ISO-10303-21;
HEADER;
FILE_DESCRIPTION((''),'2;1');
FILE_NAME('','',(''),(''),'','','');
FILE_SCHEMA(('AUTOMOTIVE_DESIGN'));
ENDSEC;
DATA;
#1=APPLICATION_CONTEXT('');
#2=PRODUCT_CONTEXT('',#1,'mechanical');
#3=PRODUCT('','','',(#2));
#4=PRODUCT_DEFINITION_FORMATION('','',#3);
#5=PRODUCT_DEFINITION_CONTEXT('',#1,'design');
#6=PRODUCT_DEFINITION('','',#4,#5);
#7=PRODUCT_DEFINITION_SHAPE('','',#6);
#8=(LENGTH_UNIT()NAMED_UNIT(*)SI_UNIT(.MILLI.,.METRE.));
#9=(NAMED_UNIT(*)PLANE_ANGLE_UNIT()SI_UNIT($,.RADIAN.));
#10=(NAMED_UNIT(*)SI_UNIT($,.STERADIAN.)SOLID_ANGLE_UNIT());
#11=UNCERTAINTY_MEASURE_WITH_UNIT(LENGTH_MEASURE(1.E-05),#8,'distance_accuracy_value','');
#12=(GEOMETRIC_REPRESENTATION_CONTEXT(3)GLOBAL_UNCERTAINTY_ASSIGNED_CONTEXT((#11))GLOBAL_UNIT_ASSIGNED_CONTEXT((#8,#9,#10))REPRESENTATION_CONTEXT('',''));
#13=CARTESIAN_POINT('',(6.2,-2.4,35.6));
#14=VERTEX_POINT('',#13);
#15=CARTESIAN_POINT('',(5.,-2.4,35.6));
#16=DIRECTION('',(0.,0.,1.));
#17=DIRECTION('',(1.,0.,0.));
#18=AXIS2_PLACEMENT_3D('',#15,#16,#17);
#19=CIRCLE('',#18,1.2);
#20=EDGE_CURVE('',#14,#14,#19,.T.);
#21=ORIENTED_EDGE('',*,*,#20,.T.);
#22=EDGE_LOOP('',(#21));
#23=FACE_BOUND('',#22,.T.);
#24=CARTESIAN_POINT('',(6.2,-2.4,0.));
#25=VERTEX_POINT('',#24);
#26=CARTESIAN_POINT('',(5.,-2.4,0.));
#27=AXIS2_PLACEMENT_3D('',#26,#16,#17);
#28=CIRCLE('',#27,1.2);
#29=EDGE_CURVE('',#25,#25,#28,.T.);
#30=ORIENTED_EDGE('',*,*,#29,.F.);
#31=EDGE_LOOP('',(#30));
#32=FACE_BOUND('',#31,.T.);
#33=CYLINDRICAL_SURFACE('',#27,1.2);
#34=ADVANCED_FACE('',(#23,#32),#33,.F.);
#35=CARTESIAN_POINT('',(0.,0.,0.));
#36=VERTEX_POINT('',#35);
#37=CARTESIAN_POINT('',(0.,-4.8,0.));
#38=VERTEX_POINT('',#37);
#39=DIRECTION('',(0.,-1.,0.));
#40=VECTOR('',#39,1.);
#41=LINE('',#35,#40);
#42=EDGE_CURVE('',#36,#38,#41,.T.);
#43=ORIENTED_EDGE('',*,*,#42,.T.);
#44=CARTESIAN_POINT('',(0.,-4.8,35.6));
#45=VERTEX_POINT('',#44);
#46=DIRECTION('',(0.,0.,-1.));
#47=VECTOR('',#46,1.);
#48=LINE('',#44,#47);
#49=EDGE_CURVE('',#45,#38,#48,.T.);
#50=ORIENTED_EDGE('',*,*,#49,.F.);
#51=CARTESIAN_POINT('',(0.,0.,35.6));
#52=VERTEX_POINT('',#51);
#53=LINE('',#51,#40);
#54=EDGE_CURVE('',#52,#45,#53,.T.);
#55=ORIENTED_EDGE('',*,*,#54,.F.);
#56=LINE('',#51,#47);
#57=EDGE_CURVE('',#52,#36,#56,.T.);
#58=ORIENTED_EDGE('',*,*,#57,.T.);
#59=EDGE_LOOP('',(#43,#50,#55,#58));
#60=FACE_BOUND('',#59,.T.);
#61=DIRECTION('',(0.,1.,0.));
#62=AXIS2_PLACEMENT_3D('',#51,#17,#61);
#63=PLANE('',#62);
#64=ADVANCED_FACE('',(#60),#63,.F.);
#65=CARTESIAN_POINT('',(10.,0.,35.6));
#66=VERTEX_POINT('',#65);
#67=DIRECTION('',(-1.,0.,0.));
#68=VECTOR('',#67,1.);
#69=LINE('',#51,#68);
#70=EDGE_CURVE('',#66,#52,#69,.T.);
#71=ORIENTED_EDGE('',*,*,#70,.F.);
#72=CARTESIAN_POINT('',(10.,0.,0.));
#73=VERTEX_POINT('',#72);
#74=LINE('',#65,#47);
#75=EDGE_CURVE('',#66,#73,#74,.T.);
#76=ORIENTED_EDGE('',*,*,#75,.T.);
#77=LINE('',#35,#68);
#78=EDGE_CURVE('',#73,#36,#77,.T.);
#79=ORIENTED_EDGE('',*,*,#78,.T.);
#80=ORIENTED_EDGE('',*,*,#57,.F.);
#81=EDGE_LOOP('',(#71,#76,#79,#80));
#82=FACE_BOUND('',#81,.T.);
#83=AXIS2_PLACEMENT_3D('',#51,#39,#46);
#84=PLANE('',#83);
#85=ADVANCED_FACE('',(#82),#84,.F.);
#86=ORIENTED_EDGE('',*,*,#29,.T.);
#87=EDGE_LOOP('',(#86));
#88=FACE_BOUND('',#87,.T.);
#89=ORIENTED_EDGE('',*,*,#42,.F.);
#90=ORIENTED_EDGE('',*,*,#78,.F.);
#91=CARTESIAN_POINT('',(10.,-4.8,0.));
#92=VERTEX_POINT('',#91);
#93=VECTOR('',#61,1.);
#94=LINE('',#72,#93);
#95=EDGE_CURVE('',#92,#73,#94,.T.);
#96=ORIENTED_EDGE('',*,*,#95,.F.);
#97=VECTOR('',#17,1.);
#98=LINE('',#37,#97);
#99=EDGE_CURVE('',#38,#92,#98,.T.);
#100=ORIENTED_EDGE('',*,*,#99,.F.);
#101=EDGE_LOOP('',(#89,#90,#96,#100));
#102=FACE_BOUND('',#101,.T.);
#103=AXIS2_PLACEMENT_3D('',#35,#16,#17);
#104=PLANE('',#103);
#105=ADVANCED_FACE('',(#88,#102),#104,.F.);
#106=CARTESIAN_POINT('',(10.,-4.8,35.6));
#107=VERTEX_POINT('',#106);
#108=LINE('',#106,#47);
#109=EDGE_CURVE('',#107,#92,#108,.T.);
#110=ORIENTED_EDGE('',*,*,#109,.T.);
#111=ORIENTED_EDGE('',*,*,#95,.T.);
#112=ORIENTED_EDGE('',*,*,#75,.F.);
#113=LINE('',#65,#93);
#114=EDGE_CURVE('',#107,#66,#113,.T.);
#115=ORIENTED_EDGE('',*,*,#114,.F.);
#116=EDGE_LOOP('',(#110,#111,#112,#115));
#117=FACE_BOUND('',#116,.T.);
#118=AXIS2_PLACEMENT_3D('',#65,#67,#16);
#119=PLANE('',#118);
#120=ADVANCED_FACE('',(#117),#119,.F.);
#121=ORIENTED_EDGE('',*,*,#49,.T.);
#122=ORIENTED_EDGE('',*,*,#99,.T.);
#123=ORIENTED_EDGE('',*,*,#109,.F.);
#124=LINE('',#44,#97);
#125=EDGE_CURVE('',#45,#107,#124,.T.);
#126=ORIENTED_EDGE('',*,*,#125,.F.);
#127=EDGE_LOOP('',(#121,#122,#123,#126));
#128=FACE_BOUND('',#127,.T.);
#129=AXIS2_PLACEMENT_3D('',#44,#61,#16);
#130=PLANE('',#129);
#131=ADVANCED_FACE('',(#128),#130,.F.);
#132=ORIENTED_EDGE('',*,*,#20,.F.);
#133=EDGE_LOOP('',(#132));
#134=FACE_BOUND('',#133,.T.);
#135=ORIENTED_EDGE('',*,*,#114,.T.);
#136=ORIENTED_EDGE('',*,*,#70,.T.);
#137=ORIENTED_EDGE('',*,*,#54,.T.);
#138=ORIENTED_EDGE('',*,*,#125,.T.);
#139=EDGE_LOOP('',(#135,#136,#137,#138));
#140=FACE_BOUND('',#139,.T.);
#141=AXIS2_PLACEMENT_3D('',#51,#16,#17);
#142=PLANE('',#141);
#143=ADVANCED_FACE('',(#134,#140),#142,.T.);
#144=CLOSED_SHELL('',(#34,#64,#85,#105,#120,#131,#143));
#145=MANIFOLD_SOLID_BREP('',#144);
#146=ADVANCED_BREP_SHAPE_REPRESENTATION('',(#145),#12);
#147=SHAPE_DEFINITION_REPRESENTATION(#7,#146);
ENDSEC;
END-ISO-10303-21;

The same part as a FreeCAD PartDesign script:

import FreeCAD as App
import Part
import Sketcher

V = App.Vector
Q = App.Units.Quantity


def add_polygon(sketch, points):
    """Adds a closed chain of lines whose ends are joined by coincident constraints."""
    first, n = sketch.GeometryCount, len(points)
    for a, b in zip(points, points[1:] + points[:1]):
        sketch.addGeometry(Part.LineSegment(App.Vector(*a, 0), App.Vector(*b, 0)), False)
    for i in range(n):
        sketch.addConstraint(Sketcher.Constraint("Coincident", first + i, 2, first + (i + 1) % n, 1))

doc = App.newDocument("Part")
body = doc.addObject("PartDesign::Body", "Body")

sketch1 = body.newObject("Sketcher::SketchObject", "Sketch")
sketch1.AttachmentSupport = (doc.getObject("XY_Plane"), [""])
sketch1.MapMode = "FlatFace"
add_polygon(sketch1, [(0, 0), (0, -4.8), (10, -4.8), (10, 0)])
sketch1.addConstraint([
    Sketcher.Constraint("Vertical", 0),
    Sketcher.Constraint("Horizontal", 1),
    Sketcher.Constraint("Vertical", 2),
    Sketcher.Constraint("Horizontal", 3),
    Sketcher.Constraint("Coincident", 3, 2, -1, 1),
    Sketcher.Constraint("DistanceX", 1, 1, 1, 2, Q("10 mm")),
    Sketcher.Constraint("DistanceY", 0, 2, 0, 1, Q("4.8 mm")),
])
pad1 = body.newObject("PartDesign::Pad", "Pad")
pad1.Profile = sketch1
pad1.Length = 35.6

sketch2 = body.newObject("Sketcher::SketchObject", "Sketch001")
sketch2.AttachmentSupport = (doc.getObject("XY_Plane"), [""])
sketch2.MapMode = "FlatFace"
sketch2.AttachmentOffset = App.Placement(V(0, 0, 35.6), App.Rotation())
sketch2.addGeometry(Part.Circle(V(5, -2.4, 0), V(0, 0, 1), 1.2), False)
sketch2.addConstraint([
    Sketcher.Constraint("Diameter", 0, Q("2.4 mm")),
    Sketcher.Constraint("DistanceX", -1, 1, 0, 3, Q("5 mm")),
    Sketcher.Constraint("DistanceY", 0, 3, -1, 1, Q("2.4 mm")),
])
pocket1 = body.newObject("PartDesign::Pocket", "Pocket")
pocket1.Profile = sketch2
pocket1.Type = "ThroughAll"

doc.recompute()
